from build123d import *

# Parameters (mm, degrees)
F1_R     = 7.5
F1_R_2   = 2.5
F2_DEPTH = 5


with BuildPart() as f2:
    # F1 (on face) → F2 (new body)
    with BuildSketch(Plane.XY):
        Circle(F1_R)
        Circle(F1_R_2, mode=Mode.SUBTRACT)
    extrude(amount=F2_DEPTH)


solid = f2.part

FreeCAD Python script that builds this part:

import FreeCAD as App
import Part
import Sketcher

doc = App.newDocument("Part")
body = doc.addObject("PartDesign::Body", "Body")

# Sketch on XY plane
sketch1 = body.newObject("Sketcher::SketchObject", "Sketch")
sketch1.AttachmentSupport = (doc.getObject("XY_Plane"), [""])
sketch1.MapMode = "FlatFace"
sketch1.addGeometry(Part.Circle(App.Vector(0, 0, 0), App.Vector(0, 0, 1), 7.5), False)
sketch1.addGeometry(Part.Circle(App.Vector(0, 0, 0), App.Vector(0, 0, 1), 2.5), False)
sketch1.addConstraint(Sketcher.Constraint("Coincident", 0, 3, -1, 1))
sketch1.addConstraint(Sketcher.Constraint("Coincident", 1, 3, -1, 1))
sketch1.addConstraint(Sketcher.Constraint("Diameter", 0, 15.0))
sketch1.addConstraint(Sketcher.Constraint("Diameter", 1, 5.0))
pad1 = body.newObject("PartDesign::Pad", "Pad")
pad1.Profile = sketch1
pad1.Length = 5

doc.recompute()
